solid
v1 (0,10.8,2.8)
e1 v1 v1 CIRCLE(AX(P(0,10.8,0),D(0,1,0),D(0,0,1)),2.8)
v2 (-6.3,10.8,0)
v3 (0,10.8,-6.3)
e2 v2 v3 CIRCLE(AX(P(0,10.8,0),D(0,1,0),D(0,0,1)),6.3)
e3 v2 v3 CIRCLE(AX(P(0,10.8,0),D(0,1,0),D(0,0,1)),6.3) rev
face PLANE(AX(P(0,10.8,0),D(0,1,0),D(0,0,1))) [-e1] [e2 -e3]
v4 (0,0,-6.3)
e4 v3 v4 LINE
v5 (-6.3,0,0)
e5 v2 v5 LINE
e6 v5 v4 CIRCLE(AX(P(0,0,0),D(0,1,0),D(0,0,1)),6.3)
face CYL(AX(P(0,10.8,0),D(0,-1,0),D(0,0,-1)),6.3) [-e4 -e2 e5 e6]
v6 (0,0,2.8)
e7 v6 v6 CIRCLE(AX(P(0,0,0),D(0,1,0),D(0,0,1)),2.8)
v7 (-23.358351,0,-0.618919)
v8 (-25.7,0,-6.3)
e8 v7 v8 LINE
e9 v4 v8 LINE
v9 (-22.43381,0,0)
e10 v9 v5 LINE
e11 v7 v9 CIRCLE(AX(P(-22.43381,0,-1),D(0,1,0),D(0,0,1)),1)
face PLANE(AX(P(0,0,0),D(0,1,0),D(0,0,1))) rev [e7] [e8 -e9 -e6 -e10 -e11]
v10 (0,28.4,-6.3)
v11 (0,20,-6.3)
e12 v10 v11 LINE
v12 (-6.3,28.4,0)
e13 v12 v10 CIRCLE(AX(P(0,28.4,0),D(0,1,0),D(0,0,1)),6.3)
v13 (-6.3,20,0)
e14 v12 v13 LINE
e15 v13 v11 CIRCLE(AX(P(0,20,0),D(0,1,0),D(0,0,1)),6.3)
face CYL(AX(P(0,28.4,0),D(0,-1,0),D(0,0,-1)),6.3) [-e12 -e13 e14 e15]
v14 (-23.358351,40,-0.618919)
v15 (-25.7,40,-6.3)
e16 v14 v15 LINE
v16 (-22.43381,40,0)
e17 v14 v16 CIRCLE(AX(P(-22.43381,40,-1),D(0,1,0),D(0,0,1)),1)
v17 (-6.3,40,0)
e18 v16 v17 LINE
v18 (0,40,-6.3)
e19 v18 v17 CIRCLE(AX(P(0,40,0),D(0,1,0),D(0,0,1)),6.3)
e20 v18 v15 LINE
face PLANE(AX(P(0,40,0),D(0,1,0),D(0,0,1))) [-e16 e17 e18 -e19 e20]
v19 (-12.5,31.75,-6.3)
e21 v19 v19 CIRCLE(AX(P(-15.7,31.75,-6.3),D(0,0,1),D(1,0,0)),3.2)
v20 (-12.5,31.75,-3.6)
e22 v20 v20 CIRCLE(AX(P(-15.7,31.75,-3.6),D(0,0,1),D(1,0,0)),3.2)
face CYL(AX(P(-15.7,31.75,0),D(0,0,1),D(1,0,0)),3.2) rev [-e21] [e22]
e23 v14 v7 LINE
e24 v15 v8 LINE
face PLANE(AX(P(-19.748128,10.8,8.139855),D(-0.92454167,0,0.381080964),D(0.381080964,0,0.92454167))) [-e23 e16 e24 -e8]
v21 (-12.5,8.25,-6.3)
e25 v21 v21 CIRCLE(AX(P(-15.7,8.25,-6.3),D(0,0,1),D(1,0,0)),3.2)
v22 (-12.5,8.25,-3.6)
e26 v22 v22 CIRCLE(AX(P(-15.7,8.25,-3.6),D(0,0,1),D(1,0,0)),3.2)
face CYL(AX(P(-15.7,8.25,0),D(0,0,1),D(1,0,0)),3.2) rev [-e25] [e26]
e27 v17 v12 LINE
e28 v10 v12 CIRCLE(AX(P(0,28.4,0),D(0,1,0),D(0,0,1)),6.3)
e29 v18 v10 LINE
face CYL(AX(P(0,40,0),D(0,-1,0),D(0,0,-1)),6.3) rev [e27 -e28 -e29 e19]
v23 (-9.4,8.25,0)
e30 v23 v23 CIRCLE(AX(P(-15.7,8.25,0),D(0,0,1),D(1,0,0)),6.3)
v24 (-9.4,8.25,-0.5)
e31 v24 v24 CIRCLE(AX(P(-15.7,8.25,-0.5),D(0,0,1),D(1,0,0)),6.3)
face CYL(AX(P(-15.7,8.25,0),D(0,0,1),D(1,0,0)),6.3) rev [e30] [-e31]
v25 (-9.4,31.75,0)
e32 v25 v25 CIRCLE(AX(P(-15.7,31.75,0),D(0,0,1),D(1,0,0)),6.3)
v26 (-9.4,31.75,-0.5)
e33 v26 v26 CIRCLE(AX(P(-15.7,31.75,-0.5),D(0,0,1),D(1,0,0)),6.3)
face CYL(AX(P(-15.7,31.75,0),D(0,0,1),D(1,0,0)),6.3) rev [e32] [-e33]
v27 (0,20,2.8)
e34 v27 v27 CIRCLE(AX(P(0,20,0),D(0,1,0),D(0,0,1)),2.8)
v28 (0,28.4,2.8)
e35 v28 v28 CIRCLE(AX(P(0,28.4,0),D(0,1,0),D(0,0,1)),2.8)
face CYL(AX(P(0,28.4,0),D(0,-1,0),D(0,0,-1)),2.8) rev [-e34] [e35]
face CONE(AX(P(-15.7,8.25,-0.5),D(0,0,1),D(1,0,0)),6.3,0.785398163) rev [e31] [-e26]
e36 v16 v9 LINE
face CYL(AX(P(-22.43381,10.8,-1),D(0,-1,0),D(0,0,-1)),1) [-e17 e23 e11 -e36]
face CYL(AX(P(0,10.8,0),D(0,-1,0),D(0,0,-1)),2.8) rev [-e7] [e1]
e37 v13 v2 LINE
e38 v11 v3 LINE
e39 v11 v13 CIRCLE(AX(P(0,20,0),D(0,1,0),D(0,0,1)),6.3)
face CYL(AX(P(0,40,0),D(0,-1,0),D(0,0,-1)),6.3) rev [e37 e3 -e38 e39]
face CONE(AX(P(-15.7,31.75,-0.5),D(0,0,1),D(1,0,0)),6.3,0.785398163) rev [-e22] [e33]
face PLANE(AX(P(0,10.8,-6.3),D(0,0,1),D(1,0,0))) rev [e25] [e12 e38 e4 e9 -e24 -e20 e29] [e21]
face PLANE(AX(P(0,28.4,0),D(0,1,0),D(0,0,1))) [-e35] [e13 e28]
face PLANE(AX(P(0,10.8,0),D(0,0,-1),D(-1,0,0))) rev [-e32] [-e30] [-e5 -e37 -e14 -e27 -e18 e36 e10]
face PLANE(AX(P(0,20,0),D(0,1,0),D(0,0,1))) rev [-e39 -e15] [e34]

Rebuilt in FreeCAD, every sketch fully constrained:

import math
import FreeCAD as App
import Part
import Sketcher

V = App.Vector
Q = App.Units.Quantity


def add_polygon(sketch, points):
    """Adds a closed chain of lines whose ends are joined by coincident constraints."""
    first, n = sketch.GeometryCount, len(points)
    for a, b in zip(points, points[1:] + points[:1]):
        sketch.addGeometry(Part.LineSegment(App.Vector(*a, 0), App.Vector(*b, 0)), False)
    for i in range(n):
        sketch.addConstraint(Sketcher.Constraint("Coincident", first + i, 2, first + (i + 1) % n, 1))

doc = App.newDocument("Part")
body = doc.addObject("PartDesign::Body", "Body")

# Sketch on XZ plane
sketch1 = doc.addObject("Sketcher::SketchObject", "Sketch")
body.addObject(sketch1)
sketch1.AttachmentSupport = (doc.XZ_Plane, [""])
sketch1.MapMode = "FlatFace"
sketch1.addGeometry(Part.LineSegment(V(-22.4, 0, 0), V(-6.3, 0, 0)), False)
sketch1.addGeometry(Part.ArcOfCircle(Part.Circle(V(0, 0, 0), V(0, 0, 1), 6.3), math.radians(-90), math.radians(180)), False)
sketch1.addGeometry(Part.LineSegment(V(0, -6.3, 0), V(-25.7, -6.3, 0)), False)
sketch1.addGeometry(Part.LineSegment(V(-25.7, -6.3, 0), V(-23.4, -0.6, 0)), False)
sketch1.addGeometry(Part.ArcOfCircle(Part.Circle(V(-22.4, -1, 0), V(0, 0, 1), 1), math.radians(90), math.radians(158)), False)
sketch1.addGeometry(Part.Circle(V(0, 0, 0), V(0, 0, 1), 2.8), False)
sketch1.addConstraint(Sketcher.Constraint("Coincident", 0, 2, 1, 2))
sketch1.addConstraint(Sketcher.Constraint("Tangent", 1, 1, 2, 1))
sketch1.addConstraint(Sketcher.Constraint("Coincident", 2, 2, 3, 1))
sketch1.addConstraint(Sketcher.Constraint("Tangent", 3, 2, 4, 2))
sketch1.addConstraint(Sketcher.Constraint("Tangent", 4, 1, 0, 1))
sketch1.addConstraint(Sketcher.Constraint("Horizontal", 0))
sketch1.addConstraint(Sketcher.Constraint("Horizontal", 2))
sketch1.addConstraint(Sketcher.Constraint("Coincident", 1, 3, -1, 1))
sketch1.addConstraint(Sketcher.Constraint("Coincident", 5, 3, -1, 1))
sketch1.addConstraint(Sketcher.Constraint("PointOnObject", 0, 2, -1))
sketch1.addConstraint(Sketcher.Constraint("Radius", 4, 1.0))
sketch1.addConstraint(Sketcher.Constraint("Diameter", 5, 5.6))
sketch1.addConstraint(Sketcher.Constraint("Radius", 1, 6.3))
sketch1.addConstraint(Sketcher.Constraint("DistanceX", 2, 2, 2, 1, 25.7))
sketch1.addConstraint(Sketcher.Constraint("DistanceX", 0, 1, 0, 2, 16.13381))
pad1 = doc.addObject("PartDesign::Pad", "Pad")
body.addObject(pad1)
pad1.Profile = sketch1
pad1.Length = 10.8
pad1.Reversed = True

# Sketch on XZ plane
sketch2 = doc.addObject("Sketcher::SketchObject", "Sketch001")
body.addObject(sketch2)
sketch2.AttachmentSupport = (doc.XZ_Plane, [""])
sketch2.MapMode = "FlatFace"
sketch2.addGeometry(Part.ArcOfCircle(Part.Circle(V(0, 0, 0), V(0, 0, 1), 6.3), math.radians(-180), math.radians(-90)), False)
sketch2.addGeometry(Part.LineSegment(V(0, -6.3, 0), V(-25.7, -6.3, 0)), False)
sketch2.addGeometry(Part.LineSegment(V(-25.7, -6.3, 0), V(-23.4, -0.6, 0)), False)
sketch2.addGeometry(Part.ArcOfCircle(Part.Circle(V(-22.4, -1, 0), V(0, 0, 1), 1), math.radians(90), math.radians(158)), False)
sketch2.addGeometry(Part.LineSegment(V(-22.4, 0, 0), V(-6.3, 0, 0)), False)
sketch2.addConstraint(Sketcher.Constraint("Tangent", 0, 2, 1, 1))
sketch2.addConstraint(Sketcher.Constraint("Coincident", 1, 2, 2, 1))
sketch2.addConstraint(Sketcher.Constraint("Tangent", 2, 2, 3, 2))
sketch2.addConstraint(Sketcher.Constraint("Tangent", 3, 1, 4, 1))
sketch2.addConstraint(Sketcher.Constraint("Coincident", 4, 2, 0, 1))
sketch2.addConstraint(Sketcher.Constraint("Horizontal", 1))
sketch2.addConstraint(Sketcher.Constraint("Horizontal", 4))
sketch2.addConstraint(Sketcher.Constraint("Coincident", 0, 3, -1, 1))
sketch2.addConstraint(Sketcher.Constraint("PointOnObject", 3, 1, -1))
sketch2.addConstraint(Sketcher.Constraint("Radius", 3, 1.0))
sketch2.addConstraint(Sketcher.Constraint("Radius", 0, 6.3))
sketch2.addConstraint(Sketcher.Constraint("DistanceX", 1, 2, 1, 1, 25.7))
sketch2.addConstraint(Sketcher.Constraint("DistanceX", 4, 1, 4, 2, 16.13381))
pad2 = doc.addObject("PartDesign::Pad", "Pad001")
body.addObject(pad2)
pad2.Profile = sketch2
pad2.Length = 40
pad2.Reversed = True

# Sketch on XZ plane
sketch3 = doc.addObject("Sketcher::SketchObject", "Sketch002")
body.addObject(sketch3)
sketch3.AttachmentSupport = (doc.XZ_Plane, [""])
sketch3.MapMode = "FlatFace"
sketch3.AttachmentOffset = App.Placement(V(0, 0, -20), App.Rotation())
sketch3.addGeometry(Part.Circle(V(0, 0, 0), V(0, 0, 1), 6.3), False)
sketch3.addGeometry(Part.Circle(V(0, 0, 0), V(0, 0, 1), 2.8), False)
sketch3.addConstraint(Sketcher.Constraint("Coincident", 0, 3, -1, 1))
sketch3.addConstraint(Sketcher.Constraint("Coincident", 1, 3, -1, 1))
sketch3.addConstraint(Sketcher.Constraint("Diameter", 0, 12.6))
sketch3.addConstraint(Sketcher.Constraint("Diameter", 1, 5.6))
pad3 = doc.addObject("PartDesign::Pad", "Pad002")
body.addObject(pad3)
pad3.Profile = sketch3
pad3.Length = 8.4
pad3.Reversed = True

# Sketch on YZ plane
sketch4 = doc.addObject("Sketcher::SketchObject", "Sketch003")
body.addObject(sketch4)
sketch4.AttachmentSupport = (doc.YZ_Plane, [""])
sketch4.MapMode = "FlatFace"
sketch4.AttachmentOffset = App.Placement(V(0, 0, -15.7), App.Rotation())
add_polygon(sketch4, [(31.8, -6.3), (31.8, 0), (25.4, 0), (25.4, -0.5), (28.6, -3.6), (28.6, -6.3)])  # lines 0-5
sketch4.addGeometry(Part.LineSegment(V(31.8, 0, 0), V(31.8, -6.3, 0)), True)  # axis
sketch4.addConstraint(Sketcher.Constraint("Vertical", 0))
sketch4.addConstraint(Sketcher.Constraint("Horizontal", 1))
sketch4.addConstraint(Sketcher.Constraint("Vertical", 2))
sketch4.addConstraint(Sketcher.Constraint("Vertical", 4))
sketch4.addConstraint(Sketcher.Constraint("Horizontal", 5))
sketch4.addConstraint(Sketcher.Constraint("Vertical", 6))
sketch4.addConstraint(Sketcher.Constraint("Coincident", 6, 1, 0, 2))
sketch4.addConstraint(Sketcher.Constraint("PointOnObject", 0, 2, -1))
sketch4.addConstraint(Sketcher.Constraint("Horizontal", 4, 2, 6, 2))
sketch4.addConstraint(Sketcher.Constraint("Equal", 1, 0))
sketch4.addConstraint(Sketcher.Constraint("Angle", 3, Q("-45 deg")))
sketch4.addConstraint(Sketcher.Constraint("DistanceX", 1, 2, 1, 1, 6.3))
sketch4.addConstraint(Sketcher.Constraint("DistanceX", 5, 1, 5, 2, 3.2))
sketch4.addConstraint(Sketcher.Constraint("DistanceY", 2, 2, 2, 1, 0.5))
sketch4.addConstraint(Sketcher.Constraint("DistanceX", -1, 1, 0, 2, 31.75))
groove = doc.addObject("PartDesign::Groove", "Groove")
body.addObject(groove)
groove.Profile = sketch4
groove.ReferenceAxis = (sketch4, ["Axis0"])
groove.Angle = 360
doc.recompute()

linearpattern = doc.addObject("PartDesign::LinearPattern", "LinearPattern")
body.addObject(linearpattern)
linearpattern.Originals = [groove]
linearpattern.Direction = (doc.Y_Axis, [""])
linearpattern.Mode = "offset"
linearpattern.Offset = 23.5
linearpattern.Occurrences = 2
linearpattern.Reversed = True
body.Tip = linearpattern

doc.recompute()
